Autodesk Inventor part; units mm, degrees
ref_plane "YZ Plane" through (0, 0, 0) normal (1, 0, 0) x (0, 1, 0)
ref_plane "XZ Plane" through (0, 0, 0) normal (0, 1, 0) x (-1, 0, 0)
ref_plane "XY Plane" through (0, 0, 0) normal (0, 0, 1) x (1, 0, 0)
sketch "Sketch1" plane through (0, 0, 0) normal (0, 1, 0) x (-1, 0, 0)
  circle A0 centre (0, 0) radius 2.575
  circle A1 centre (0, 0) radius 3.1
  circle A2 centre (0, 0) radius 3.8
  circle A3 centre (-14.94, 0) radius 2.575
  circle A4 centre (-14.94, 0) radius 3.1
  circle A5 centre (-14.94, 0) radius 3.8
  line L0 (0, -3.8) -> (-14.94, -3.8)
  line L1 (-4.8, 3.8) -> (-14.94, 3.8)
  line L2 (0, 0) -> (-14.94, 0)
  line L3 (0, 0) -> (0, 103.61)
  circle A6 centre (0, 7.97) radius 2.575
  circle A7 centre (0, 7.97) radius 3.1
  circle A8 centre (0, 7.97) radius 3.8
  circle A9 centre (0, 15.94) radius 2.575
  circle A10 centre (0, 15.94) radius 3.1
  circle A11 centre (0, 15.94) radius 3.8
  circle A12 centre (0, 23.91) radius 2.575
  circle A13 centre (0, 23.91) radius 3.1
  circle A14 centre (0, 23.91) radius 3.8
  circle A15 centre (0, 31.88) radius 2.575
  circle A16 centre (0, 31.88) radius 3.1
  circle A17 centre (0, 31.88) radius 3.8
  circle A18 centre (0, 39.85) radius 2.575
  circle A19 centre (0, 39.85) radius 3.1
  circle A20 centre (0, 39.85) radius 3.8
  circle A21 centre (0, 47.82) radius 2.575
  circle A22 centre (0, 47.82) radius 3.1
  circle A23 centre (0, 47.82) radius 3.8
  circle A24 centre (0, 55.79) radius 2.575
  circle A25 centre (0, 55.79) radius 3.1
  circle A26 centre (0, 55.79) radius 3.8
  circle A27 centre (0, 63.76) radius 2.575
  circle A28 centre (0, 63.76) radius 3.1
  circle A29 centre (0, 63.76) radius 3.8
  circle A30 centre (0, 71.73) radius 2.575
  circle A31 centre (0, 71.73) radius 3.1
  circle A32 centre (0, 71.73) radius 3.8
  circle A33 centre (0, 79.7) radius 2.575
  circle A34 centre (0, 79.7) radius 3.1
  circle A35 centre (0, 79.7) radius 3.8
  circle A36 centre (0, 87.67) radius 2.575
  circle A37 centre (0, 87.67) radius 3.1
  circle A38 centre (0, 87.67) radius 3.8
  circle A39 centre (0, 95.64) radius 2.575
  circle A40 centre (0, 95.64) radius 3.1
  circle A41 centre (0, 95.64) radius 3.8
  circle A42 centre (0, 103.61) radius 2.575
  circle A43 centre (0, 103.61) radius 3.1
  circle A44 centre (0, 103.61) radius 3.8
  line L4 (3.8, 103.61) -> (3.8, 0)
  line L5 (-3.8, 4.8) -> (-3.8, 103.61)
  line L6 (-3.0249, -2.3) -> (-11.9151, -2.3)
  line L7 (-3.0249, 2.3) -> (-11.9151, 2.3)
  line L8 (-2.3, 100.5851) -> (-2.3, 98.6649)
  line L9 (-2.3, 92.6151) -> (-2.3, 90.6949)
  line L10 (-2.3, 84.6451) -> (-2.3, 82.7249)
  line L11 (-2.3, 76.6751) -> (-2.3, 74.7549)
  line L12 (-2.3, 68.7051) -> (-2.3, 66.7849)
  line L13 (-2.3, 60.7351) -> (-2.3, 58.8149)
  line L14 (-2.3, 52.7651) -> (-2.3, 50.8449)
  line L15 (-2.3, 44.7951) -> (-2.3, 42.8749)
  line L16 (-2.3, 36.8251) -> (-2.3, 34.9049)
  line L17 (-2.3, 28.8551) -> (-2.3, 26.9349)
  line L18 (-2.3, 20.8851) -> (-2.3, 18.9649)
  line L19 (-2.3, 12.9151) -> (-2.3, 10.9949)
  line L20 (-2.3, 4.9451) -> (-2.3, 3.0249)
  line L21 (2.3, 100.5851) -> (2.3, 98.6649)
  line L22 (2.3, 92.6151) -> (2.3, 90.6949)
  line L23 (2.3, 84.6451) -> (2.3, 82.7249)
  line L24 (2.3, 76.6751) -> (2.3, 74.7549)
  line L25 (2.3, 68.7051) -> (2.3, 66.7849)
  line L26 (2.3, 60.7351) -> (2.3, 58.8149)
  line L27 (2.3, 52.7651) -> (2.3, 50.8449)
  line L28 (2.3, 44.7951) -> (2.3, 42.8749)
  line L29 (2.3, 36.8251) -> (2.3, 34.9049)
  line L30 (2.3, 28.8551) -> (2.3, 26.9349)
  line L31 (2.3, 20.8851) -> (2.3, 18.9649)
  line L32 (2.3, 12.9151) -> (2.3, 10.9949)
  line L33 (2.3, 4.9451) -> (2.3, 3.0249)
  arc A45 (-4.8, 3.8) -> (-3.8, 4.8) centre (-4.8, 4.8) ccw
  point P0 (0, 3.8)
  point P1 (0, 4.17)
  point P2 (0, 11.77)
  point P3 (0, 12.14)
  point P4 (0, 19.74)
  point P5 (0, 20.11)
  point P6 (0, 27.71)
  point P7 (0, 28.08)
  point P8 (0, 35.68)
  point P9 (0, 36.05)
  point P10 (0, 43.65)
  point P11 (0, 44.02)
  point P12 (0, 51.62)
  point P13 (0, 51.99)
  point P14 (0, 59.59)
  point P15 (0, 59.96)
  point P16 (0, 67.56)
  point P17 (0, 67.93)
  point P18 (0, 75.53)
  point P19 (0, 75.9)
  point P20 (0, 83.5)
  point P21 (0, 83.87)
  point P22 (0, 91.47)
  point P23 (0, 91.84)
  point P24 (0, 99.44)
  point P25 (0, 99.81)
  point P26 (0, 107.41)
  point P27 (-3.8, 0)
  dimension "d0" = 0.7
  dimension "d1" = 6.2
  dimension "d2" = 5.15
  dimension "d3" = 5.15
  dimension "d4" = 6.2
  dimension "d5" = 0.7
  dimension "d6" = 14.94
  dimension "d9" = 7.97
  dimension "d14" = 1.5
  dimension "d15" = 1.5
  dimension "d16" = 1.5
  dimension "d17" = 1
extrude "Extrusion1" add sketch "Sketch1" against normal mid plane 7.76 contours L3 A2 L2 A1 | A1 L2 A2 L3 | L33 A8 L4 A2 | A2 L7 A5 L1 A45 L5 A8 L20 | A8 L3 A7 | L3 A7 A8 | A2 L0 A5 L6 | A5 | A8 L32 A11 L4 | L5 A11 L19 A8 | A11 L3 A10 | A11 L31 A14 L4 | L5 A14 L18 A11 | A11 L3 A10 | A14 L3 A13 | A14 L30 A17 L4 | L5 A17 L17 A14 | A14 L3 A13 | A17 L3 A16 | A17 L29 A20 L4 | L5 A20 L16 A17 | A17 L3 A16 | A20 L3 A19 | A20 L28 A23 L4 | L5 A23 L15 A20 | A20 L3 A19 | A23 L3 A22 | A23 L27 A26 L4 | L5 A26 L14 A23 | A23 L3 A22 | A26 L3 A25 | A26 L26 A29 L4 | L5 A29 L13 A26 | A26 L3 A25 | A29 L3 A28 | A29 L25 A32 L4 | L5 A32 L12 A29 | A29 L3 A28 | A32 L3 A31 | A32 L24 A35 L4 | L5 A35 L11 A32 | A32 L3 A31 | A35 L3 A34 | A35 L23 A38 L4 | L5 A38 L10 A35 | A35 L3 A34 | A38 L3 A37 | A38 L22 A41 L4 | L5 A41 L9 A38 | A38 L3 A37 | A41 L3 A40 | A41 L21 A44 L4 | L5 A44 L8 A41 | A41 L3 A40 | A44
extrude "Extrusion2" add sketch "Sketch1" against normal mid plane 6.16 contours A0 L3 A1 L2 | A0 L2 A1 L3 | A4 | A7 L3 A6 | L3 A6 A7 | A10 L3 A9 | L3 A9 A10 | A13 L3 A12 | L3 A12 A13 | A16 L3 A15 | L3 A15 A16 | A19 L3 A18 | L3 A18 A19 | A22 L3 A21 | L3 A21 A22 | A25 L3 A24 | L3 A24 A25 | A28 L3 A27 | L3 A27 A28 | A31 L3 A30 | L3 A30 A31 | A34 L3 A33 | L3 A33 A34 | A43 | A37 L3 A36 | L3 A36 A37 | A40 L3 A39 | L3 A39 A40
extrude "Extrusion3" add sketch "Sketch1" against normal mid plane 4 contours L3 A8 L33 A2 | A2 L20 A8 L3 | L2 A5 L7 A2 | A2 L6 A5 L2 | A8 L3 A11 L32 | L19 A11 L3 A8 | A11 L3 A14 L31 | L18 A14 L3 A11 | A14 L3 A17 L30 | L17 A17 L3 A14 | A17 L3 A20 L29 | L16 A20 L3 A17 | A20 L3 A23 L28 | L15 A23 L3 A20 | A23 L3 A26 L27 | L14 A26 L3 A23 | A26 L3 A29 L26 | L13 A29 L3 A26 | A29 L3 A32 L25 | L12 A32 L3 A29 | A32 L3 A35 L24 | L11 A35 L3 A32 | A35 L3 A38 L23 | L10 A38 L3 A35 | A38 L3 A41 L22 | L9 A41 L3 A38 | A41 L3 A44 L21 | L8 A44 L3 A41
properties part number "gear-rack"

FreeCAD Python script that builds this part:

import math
import FreeCAD as App
import Part
import Sketcher
Q = App.Units.Quantity

doc = App.newDocument("Part")
body = doc.addObject("PartDesign::Body", "Body")

sketch1 = body.newObject("Sketcher::SketchObject", "Sketch")
sketch1.AttachmentSupport = (doc.getObject("XZ_Plane"), [""])
sketch1.MapMode = "FlatFace"
sketch1.addGeometry([
    Part.ArcOfCircle(Part.Circle(App.Vector(0, 0, 0), App.Vector(0, 0, 1), 3.8), math.radians(180), math.radians(270)),
    Part.LineSegment(App.Vector(-3.8, 0, 0), App.Vector(-3.8, 103.6, 0)),
    Part.ArcOfCircle(Part.Circle(App.Vector(0, 103.6, 0), App.Vector(0, 0, 1), 3.8), math.radians(0), math.radians(180)),
    Part.LineSegment(App.Vector(3.8, 103.6, 0), App.Vector(3.8, 4.8, 0)),
    Part.ArcOfCircle(Part.Circle(App.Vector(4.8, 4.8, 0), App.Vector(0, 0, 1), 1), math.radians(180), math.radians(270)),
    Part.LineSegment(App.Vector(4.8, 3.8, 0), App.Vector(14.9, 3.8, 0)),
    Part.ArcOfCircle(Part.Circle(App.Vector(14.9, 0, 0), App.Vector(0, 0, 1), 3.8), math.radians(-90), math.radians(90)),
    Part.LineSegment(App.Vector(14.9, -3.8, 0), App.Vector(0, -3.8, 0)),
    Part.ArcOfCircle(Part.Circle(App.Vector(0, 0, 0), App.Vector(0, 0, 1), 3.8), math.radians(53), math.radians(127)),
    Part.LineSegment(App.Vector(2.3, 3, 0), App.Vector(2.3, 4.9, 0)),
    Part.ArcOfCircle(Part.Circle(App.Vector(0, 8, 0), App.Vector(0, 0, 1), 3.8), math.radians(-127), math.radians(-53)),
    Part.LineSegment(App.Vector(-2.3, 4.9, 0), App.Vector(-2.3, 3, 0)),
    Part.LineSegment(App.Vector(3, -2.3, 0), App.Vector(11.9, -2.3, 0)),
    Part.ArcOfCircle(Part.Circle(App.Vector(14.9, 0, 0), App.Vector(0, 0, 1), 3.8), math.radians(180), math.radians(217)),
    Part.ArcOfCircle(Part.Circle(App.Vector(14.9, 0, 0), App.Vector(0, 0, 1), 3.8), math.radians(143), math.radians(180)),
    Part.LineSegment(App.Vector(11.9, 2.3, 0), App.Vector(3, 2.3, 0)),
    Part.ArcOfCircle(Part.Circle(App.Vector(0, 0, 0), App.Vector(0, 0, 1), 3.8), math.radians(-37), math.radians(37)),
    Part.Circle(App.Vector(0, 0, 0), App.Vector(0, 0, 1), 3.1),
    Part.Circle(App.Vector(0, 8, 0), App.Vector(0, 0, 1), 3.1),
    Part.ArcOfCircle(Part.Circle(App.Vector(0, 8, 0), App.Vector(0, 0, 1), 3.8), math.radians(53), math.radians(127)),
    Part.LineSegment(App.Vector(2.3, 11, 0), App.Vector(2.3, 12.9, 0)),
    Part.ArcOfCircle(Part.Circle(App.Vector(0, 15.9, 0), App.Vector(0, 0, 1), 3.8), math.radians(-127), math.radians(-53)),
    Part.LineSegment(App.Vector(-2.3, 12.9, 0), App.Vector(-2.3, 11, 0)),
    Part.Circle(App.Vector(14.9, 0, 0), App.Vector(0, 0, 1), 3.1),
    Part.Circle(App.Vector(0, 15.9, 0), App.Vector(0, 0, 1), 3.1),
    Part.ArcOfCircle(Part.Circle(App.Vector(0, 15.9, 0), App.Vector(0, 0, 1), 3.8), math.radians(53), math.radians(127)),
    Part.LineSegment(App.Vector(2.3, 19, 0), App.Vector(2.3, 20.9, 0)),
    Part.ArcOfCircle(Part.Circle(App.Vector(0, 23.9, 0), App.Vector(0, 0, 1), 3.8), math.radians(-127), math.radians(-53)),
    Part.LineSegment(App.Vector(-2.3, 20.9, 0), App.Vector(-2.3, 19, 0)),
    Part.Circle(App.Vector(0, 23.9, 0), App.Vector(0, 0, 1), 3.1),
    Part.ArcOfCircle(Part.Circle(App.Vector(0, 23.9, 0), App.Vector(0, 0, 1), 3.8), math.radians(53), math.radians(127)),
    Part.LineSegment(App.Vector(2.3, 26.9, 0), App.Vector(2.3, 28.9, 0)),
    Part.ArcOfCircle(Part.Circle(App.Vector(0, 31.9, 0), App.Vector(0, 0, 1), 3.8), math.radians(-127), math.radians(-53)),
    Part.LineSegment(App.Vector(-2.3, 28.9, 0), App.Vector(-2.3, 26.9, 0)),
    Part.Circle(App.Vector(0, 31.9, 0), App.Vector(0, 0, 1), 3.1),
    Part.ArcOfCircle(Part.Circle(App.Vector(0, 31.9, 0), App.Vector(0, 0, 1), 3.8), math.radians(53), math.radians(127)),
    Part.LineSegment(App.Vector(2.3, 34.9, 0), App.Vector(2.3, 36.8, 0)),
    Part.ArcOfCircle(Part.Circle(App.Vector(0, 39.9, 0), App.Vector(0, 0, 1), 3.8), math.radians(-127), math.radians(-53)),
    Part.LineSegment(App.Vector(-2.3, 36.8, 0), App.Vector(-2.3, 34.9, 0)),
    Part.Circle(App.Vector(0, 39.9, 0), App.Vector(0, 0, 1), 3.1),
    Part.ArcOfCircle(Part.Circle(App.Vector(0, 39.9, 0), App.Vector(0, 0, 1), 3.8), math.radians(53), math.radians(127)),
    Part.LineSegment(App.Vector(2.3, 42.9, 0), App.Vector(2.3, 44.8, 0)),
    Part.ArcOfCircle(Part.Circle(App.Vector(0, 47.8, 0), App.Vector(0, 0, 1), 3.8), math.radians(-127), math.radians(-53)),
    Part.LineSegment(App.Vector(-2.3, 44.8, 0), App.Vector(-2.3, 42.9, 0)),
    Part.Circle(App.Vector(0, 47.8, 0), App.Vector(0, 0, 1), 3.1),
    Part.ArcOfCircle(Part.Circle(App.Vector(0, 47.8, 0), App.Vector(0, 0, 1), 3.8), math.radians(53), math.radians(127)),
    Part.LineSegment(App.Vector(2.3, 50.8, 0), App.Vector(2.3, 52.8, 0)),
    Part.ArcOfCircle(Part.Circle(App.Vector(0, 55.8, 0), App.Vector(0, 0, 1), 3.8), math.radians(-127), math.radians(-53)),
    Part.LineSegment(App.Vector(-2.3, 52.8, 0), App.Vector(-2.3, 50.8, 0)),
    Part.Circle(App.Vector(0, 55.8, 0), App.Vector(0, 0, 1), 3.1),
    Part.ArcOfCircle(Part.Circle(App.Vector(0, 55.8, 0), App.Vector(0, 0, 1), 3.8), math.radians(53), math.radians(127)),
    Part.LineSegment(App.Vector(2.3, 58.8, 0), App.Vector(2.3, 60.7, 0)),
    Part.ArcOfCircle(Part.Circle(App.Vector(0, 63.8, 0), App.Vector(0, 0, 1), 3.8), math.radians(-127), math.radians(-53)),
    Part.LineSegment(App.Vector(-2.3, 60.7, 0), App.Vector(-2.3, 58.8, 0)),
    Part.Circle(App.Vector(0, 63.8, 0), App.Vector(0, 0, 1), 3.1),
    Part.ArcOfCircle(Part.Circle(App.Vector(0, 63.8, 0), App.Vector(0, 0, 1), 3.8), math.radians(53), math.radians(127)),
    Part.LineSegment(App.Vector(2.3, 66.8, 0), App.Vector(2.3, 68.7, 0)),
    Part.ArcOfCircle(Part.Circle(App.Vector(0, 71.7, 0), App.Vector(0, 0, 1), 3.8), math.radians(-127), math.radians(-53)),
    Part.LineSegment(App.Vector(-2.3, 68.7, 0), App.Vector(-2.3, 66.8, 0)),
    Part.Circle(App.Vector(0, 71.7, 0), App.Vector(0, 0, 1), 3.1),
    Part.ArcOfCircle(Part.Circle(App.Vector(0, 71.7, 0), App.Vector(0, 0, 1), 3.8), math.radians(53), math.radians(127)),
    Part.LineSegment(App.Vector(2.3, 74.8, 0), App.Vector(2.3, 76.7, 0)),
    Part.ArcOfCircle(Part.Circle(App.Vector(0, 79.7, 0), App.Vector(0, 0, 1), 3.8), math.radians(-127), math.radians(-53)),
    Part.LineSegment(App.Vector(-2.3, 76.7, 0), App.Vector(-2.3, 74.8, 0)),
    Part.Circle(App.Vector(0, 79.7, 0), App.Vector(0, 0, 1), 3.1),
    Part.ArcOfCircle(Part.Circle(App.Vector(0, 79.7, 0), App.Vector(0, 0, 1), 3.8), math.radians(53), math.radians(127)),
    Part.LineSegment(App.Vector(2.3, 82.7, 0), App.Vector(2.3, 84.6, 0)),
    Part.ArcOfCircle(Part.Circle(App.Vector(0, 87.7, 0), App.Vector(0, 0, 1), 3.8), math.radians(-127), math.radians(-53)),
    Part.LineSegment(App.Vector(-2.3, 84.6, 0), App.Vector(-2.3, 82.7, 0)),
    Part.Circle(App.Vector(0, 87.7, 0), App.Vector(0, 0, 1), 3.1),
    Part.ArcOfCircle(Part.Circle(App.Vector(0, 87.7, 0), App.Vector(0, 0, 1), 3.8), math.radians(53), math.radians(127)),
    Part.LineSegment(App.Vector(2.3, 90.7, 0), App.Vector(2.3, 92.6, 0)),
    Part.ArcOfCircle(Part.Circle(App.Vector(0, 95.6, 0), App.Vector(0, 0, 1), 3.8), math.radians(-127), math.radians(-53)),
    Part.LineSegment(App.Vector(-2.3, 92.6, 0), App.Vector(-2.3, 90.7, 0)),
    Part.Circle(App.Vector(0, 95.6, 0), App.Vector(0, 0, 1), 3.1),
    Part.ArcOfCircle(Part.Circle(App.Vector(0, 95.6, 0), App.Vector(0, 0, 1), 3.8), math.radians(53), math.radians(127)),
    Part.LineSegment(App.Vector(2.3, 98.7, 0), App.Vector(2.3, 100.6, 0)),
    Part.ArcOfCircle(Part.Circle(App.Vector(0, 103.6, 0), App.Vector(0, 0, 1), 3.8), math.radians(-90), math.radians(-53)),
    Part.ArcOfCircle(Part.Circle(App.Vector(0, 103.6, 0), App.Vector(0, 0, 1), 3.8), math.radians(-127), math.radians(-90)),
    Part.LineSegment(App.Vector(-2.3, 100.6, 0), App.Vector(-2.3, 98.7, 0)),
    Part.Circle(App.Vector(0, 103.6, 0), App.Vector(0, 0, 1), 3.1),
], False)
sketch1.addConstraint([
    Sketcher.Constraint("Tangent", 0, 1, 1, 1),
    Sketcher.Constraint("Tangent", 1, 2, 2, 2),
    Sketcher.Constraint("Tangent", 2, 1, 3, 1),
    Sketcher.Constraint("Tangent", 3, 2, 4, 1),
    Sketcher.Constraint("Tangent", 4, 2, 5, 1),
    Sketcher.Constraint("Tangent", 5, 2, 6, 2),
    Sketcher.Constraint("Tangent", 6, 1, 7, 1),
    Sketcher.Constraint("Tangent", 7, 2, 0, 2),
    Sketcher.Constraint("Coincident", 8, 1, 9, 1),
    Sketcher.Constraint("Coincident", 9, 2, 10, 2),
    Sketcher.Constraint("Coincident", 10, 1, 11, 1),
    Sketcher.Constraint("Coincident", 11, 2, 8, 2),
    Sketcher.Constraint("Coincident", 12, 2, 13, 2),
    Sketcher.Constraint("Tangent", 13, 1, 14, 2),
    Sketcher.Constraint("Coincident", 14, 1, 15, 1),
    Sketcher.Constraint("Coincident", 15, 2, 16, 2),
    Sketcher.Constraint("Coincident", 16, 1, 12, 1),
    Sketcher.Constraint("Coincident", 19, 1, 20, 1),
    Sketcher.Constraint("Coincident", 20, 2, 21, 2),
    Sketcher.Constraint("Coincident", 21, 1, 22, 1),
    Sketcher.Constraint("Coincident", 22, 2, 19, 2),
    Sketcher.Constraint("Coincident", 25, 1, 26, 1),
    Sketcher.Constraint("Coincident", 26, 2, 27, 2),
    Sketcher.Constraint("Coincident", 27, 1, 28, 1),
    Sketcher.Constraint("Coincident", 28, 2, 25, 2),
    Sketcher.Constraint("Coincident", 30, 1, 31, 1),
    Sketcher.Constraint("Coincident", 31, 2, 32, 2),
    Sketcher.Constraint("Coincident", 32, 1, 33, 1),
    Sketcher.Constraint("Coincident", 33, 2, 30, 2),
    Sketcher.Constraint("Coincident", 35, 1, 36, 1),
    Sketcher.Constraint("Coincident", 36, 2, 37, 2),
    Sketcher.Constraint("Coincident", 37, 1, 38, 1),
    Sketcher.Constraint("Coincident", 38, 2, 35, 2),
    Sketcher.Constraint("Coincident", 40, 1, 41, 1),
    Sketcher.Constraint("Coincident", 41, 2, 42, 2),
    Sketcher.Constraint("Coincident", 42, 1, 43, 1),
    Sketcher.Constraint("Coincident", 43, 2, 40, 2),
    Sketcher.Constraint("Coincident", 45, 1, 46, 1),
    Sketcher.Constraint("Coincident", 46, 2, 47, 2),
    Sketcher.Constraint("Coincident", 47, 1, 48, 1),
    Sketcher.Constraint("Coincident", 48, 2, 45, 2),
    Sketcher.Constraint("Coincident", 50, 1, 51, 1),
    Sketcher.Constraint("Coincident", 51, 2, 52, 2),
    Sketcher.Constraint("Coincident", 52, 1, 53, 1),
    Sketcher.Constraint("Coincident", 53, 2, 50, 2),
    Sketcher.Constraint("Coincident", 55, 1, 56, 1),
    Sketcher.Constraint("Coincident", 56, 2, 57, 2),
    Sketcher.Constraint("Coincident", 57, 1, 58, 1),
    Sketcher.Constraint("Coincident", 58, 2, 55, 2),
    Sketcher.Constraint("Coincident", 60, 1, 61, 1),
    Sketcher.Constraint("Coincident", 61, 2, 62, 2),
    Sketcher.Constraint("Coincident", 62, 1, 63, 1),
    Sketcher.Constraint("Coincident", 63, 2, 60, 2),
    Sketcher.Constraint("Coincident", 65, 1, 66, 1),
    Sketcher.Constraint("Coincident", 66, 2, 67, 2),
    Sketcher.Constraint("Coincident", 67, 1, 68, 1),
    Sketcher.Constraint("Coincident", 68, 2, 65, 2),
    Sketcher.Constraint("Coincident", 70, 1, 71, 1),
    Sketcher.Constraint("Coincident", 71, 2, 72, 2),
    Sketcher.Constraint("Coincident", 72, 1, 73, 1),
    Sketcher.Constraint("Coincident", 73, 2, 70, 2),
    Sketcher.Constraint("Coincident", 75, 1, 76, 1),
    Sketcher.Constraint("Coincident", 76, 2, 77, 2),
    Sketcher.Constraint("Tangent", 77, 1, 78, 2),
    Sketcher.Constraint("Coincident", 78, 1, 79, 1),
    Sketcher.Constraint("Coincident", 79, 2, 75, 2),
    Sketcher.Constraint("Vertical", 1),
    Sketcher.Constraint("Vertical", 3),
    Sketcher.Constraint("Horizontal", 5),
    Sketcher.Constraint("Horizontal", 7),
    Sketcher.Constraint("Vertical", 9),
    Sketcher.Constraint("Vertical", 11),
    Sketcher.Constraint("Horizontal", 12),
    Sketcher.Constraint("Horizontal", 15),
    Sketcher.Constraint("Vertical", 20),
    Sketcher.Constraint("Vertical", 22),
    Sketcher.Constraint("Vertical", 26),
    Sketcher.Constraint("Vertical", 28),
    Sketcher.Constraint("Vertical", 31),
    Sketcher.Constraint("Vertical", 33),
    Sketcher.Constraint("Vertical", 36),
    Sketcher.Constraint("Vertical", 38),
    Sketcher.Constraint("Vertical", 41),
    Sketcher.Constraint("Vertical", 43),
    Sketcher.Constraint("Vertical", 46),
    Sketcher.Constraint("Vertical", 48),
    Sketcher.Constraint("Vertical", 51),
    Sketcher.Constraint("Vertical", 53),
    Sketcher.Constraint("Vertical", 56),
    Sketcher.Constraint("Vertical", 58),
    Sketcher.Constraint("Vertical", 61),
    Sketcher.Constraint("Vertical", 63),
    Sketcher.Constraint("Vertical", 66),
    Sketcher.Constraint("Vertical", 68),
    Sketcher.Constraint("Vertical", 71),
    Sketcher.Constraint("Vertical", 73),
    Sketcher.Constraint("Vertical", 76),
    Sketcher.Constraint("Vertical", 79),
    Sketcher.Constraint("Coincident", 0, 3, -1, 1),
    Sketcher.Constraint("Coincident", 8, 3, -1, 1),
    Sketcher.Constraint("Coincident", 16, 3, -1, 1),
    Sketcher.Constraint("Coincident", 17, 3, -1, 1),
    Sketcher.Constraint("Coincident", 13, 3, 6, 3),
    Sketcher.Constraint("Coincident", 18, 3, 10, 3),
    Sketcher.Constraint("Coincident", 19, 3, 10, 3),
    Sketcher.Constraint("Coincident", 23, 3, 6, 3),
    Sketcher.Constraint("Coincident", 24, 3, 21, 3),
    Sketcher.Constraint("Coincident", 25, 3, 21, 3),
    Sketcher.Constraint("Coincident", 29, 3, 27, 3),
    Sketcher.Constraint("Coincident", 30, 3, 27, 3),
    Sketcher.Constraint("Coincident", 34, 3, 32, 3),
    Sketcher.Constraint("Coincident", 35, 3, 32, 3),
    Sketcher.Constraint("Coincident", 39, 3, 37, 3),
    Sketcher.Constraint("Coincident", 40, 3, 37, 3),
    Sketcher.Constraint("Coincident", 44, 3, 42, 3),
    Sketcher.Constraint("Coincident", 45, 3, 42, 3),
    Sketcher.Constraint("Coincident", 49, 3, 47, 3),
    Sketcher.Constraint("Coincident", 50, 3, 47, 3),
    Sketcher.Constraint("Coincident", 54, 3, 52, 3),
    Sketcher.Constraint("Coincident", 55, 3, 52, 3),
    Sketcher.Constraint("Coincident", 59, 3, 57, 3),
    Sketcher.Constraint("Coincident", 60, 3, 57, 3),
    Sketcher.Constraint("Coincident", 64, 3, 62, 3),
    Sketcher.Constraint("Coincident", 65, 3, 62, 3),
    Sketcher.Constraint("Coincident", 69, 3, 67, 3),
    Sketcher.Constraint("Coincident", 70, 3, 67, 3),
    Sketcher.Constraint("Coincident", 74, 3, 72, 3),
    Sketcher.Constraint("Coincident", 75, 3, 72, 3),
    Sketcher.Constraint("Coincident", 77, 3, 2, 3),
    Sketcher.Constraint("Coincident", 80, 3, 2, 3),
    Sketcher.Constraint("Equal", 0, 2),
    Sketcher.Constraint("Equal", 2, 6),
    Sketcher.Constraint("Equal", 6, 8),
    Sketcher.Constraint("Equal", 8, 10),
    Sketcher.Constraint("Equal", 10, 13),
    Sketcher.Constraint("Equal", 13, 14),
    Sketcher.Constraint("Equal", 14, 16),
    Sketcher.Constraint("Equal", 17, 18),
    Sketcher.Constraint("Equal", 16, 19),
    Sketcher.Constraint("Equal", 19, 21),
    Sketcher.Constraint("Equal", 18, 23),
    Sketcher.Constraint("Equal", 23, 24),
    Sketcher.Constraint("Equal", 21, 25),
    Sketcher.Constraint("Equal", 25, 27),
    Sketcher.Constraint("Equal", 24, 29),
    Sketcher.Constraint("Equal", 27, 30),
    Sketcher.Constraint("Equal", 30, 32),
    Sketcher.Constraint("Equal", 29, 34),
    Sketcher.Constraint("Equal", 32, 35),
    Sketcher.Constraint("Equal", 35, 37),
    Sketcher.Constraint("Equal", 34, 39),
    Sketcher.Constraint("Equal", 37, 40),
    Sketcher.Constraint("Equal", 40, 42),
    Sketcher.Constraint("Equal", 39, 44),
    Sketcher.Constraint("Equal", 42, 45),
    Sketcher.Constraint("Equal", 45, 47),
    Sketcher.Constraint("Equal", 44, 49),
    Sketcher.Constraint("Equal", 47, 50),
    Sketcher.Constraint("Equal", 50, 52),
    Sketcher.Constraint("Equal", 49, 54),
    Sketcher.Constraint("Equal", 52, 55),
    Sketcher.Constraint("Equal", 55, 57),
    Sketcher.Constraint("Equal", 54, 59),
    Sketcher.Constraint("Equal", 57, 60),
    Sketcher.Constraint("Equal", 60, 62),
    Sketcher.Constraint("Equal", 59, 64),
    Sketcher.Constraint("Equal", 62, 65),
    Sketcher.Constraint("Equal", 65, 67),
    Sketcher.Constraint("Equal", 64, 69),
    Sketcher.Constraint("Equal", 67, 70),
    Sketcher.Constraint("Equal", 70, 72),
    Sketcher.Constraint("Equal", 69, 74),
    Sketcher.Constraint("Equal", 72, 75),
    Sketcher.Constraint("Equal", 75, 77),
    Sketcher.Constraint("Equal", 77, 78),
    Sketcher.Constraint("Equal", 74, 80),
    Sketcher.Constraint("Symmetric", 9, 2, 10, 1, -2),
    Sketcher.Constraint("Symmetric", 20, 2, 21, 1, -2),
    Sketcher.Constraint("Symmetric", 26, 2, 27, 1, -2),
    Sketcher.Constraint("Symmetric", 31, 2, 32, 1, -2),
    Sketcher.Constraint("Symmetric", 36, 2, 37, 1, -2),
    Sketcher.Constraint("Symmetric", 41, 2, 42, 1, -2),
    Sketcher.Constraint("Symmetric", 46, 2, 47, 1, -2),
    Sketcher.Constraint("Symmetric", 51, 2, 52, 1, -2),
    Sketcher.Constraint("Symmetric", 56, 2, 57, 1, -2),
    Sketcher.Constraint("Symmetric", 61, 2, 62, 1, -2),
    Sketcher.Constraint("Symmetric", 66, 2, 67, 1, -2),
    Sketcher.Constraint("Symmetric", 71, 2, 72, 1, -2),
    Sketcher.Constraint("PointOnObject", 13, 1, -1),
    Sketcher.Constraint("PointOnObject", 77, 1, -2),
    Sketcher.Constraint("Horizontal", 76, 2, 78, 1),
    Sketcher.Constraint("Vertical", 12, 2, 14, 1),
    Sketcher.Constraint("Vertical", 9, 2, 19, 1),
    Sketcher.Constraint("Vertical", 20, 2, 25, 1),
    Sketcher.Constraint("Vertical", 26, 2, 30, 1),
    Sketcher.Constraint("Vertical", 31, 2, 35, 1),
    Sketcher.Constraint("Vertical", 36, 2, 40, 1),
    Sketcher.Constraint("Vertical", 41, 2, 45, 1),
    Sketcher.Constraint("Vertical", 46, 2, 50, 1),
    Sketcher.Constraint("Vertical", 51, 2, 55, 1),
    Sketcher.Constraint("Vertical", 56, 2, 60, 1),
    Sketcher.Constraint("Vertical", 61, 2, 65, 1),
    Sketcher.Constraint("Vertical", 66, 2, 70, 1),
    Sketcher.Constraint("Vertical", 71, 2, 75, 1),
    Sketcher.Constraint("Equal", 11, 20),
    Sketcher.Constraint("Equal", 22, 26),
    Sketcher.Constraint("Equal", 28, 31),
    Sketcher.Constraint("Equal", 33, 36),
    Sketcher.Constraint("Equal", 38, 41),
    Sketcher.Constraint("Equal", 43, 46),
    Sketcher.Constraint("Equal", 48, 51),
    Sketcher.Constraint("Equal", 53, 56),
    Sketcher.Constraint("Equal", 58, 61),
    Sketcher.Constraint("Equal", 63, 66),
    Sketcher.Constraint("Equal", 68, 71),
    Sketcher.Constraint("Equal", 73, 76),
    Sketcher.Constraint("Radius", 4, Q("1 mm")),
    Sketcher.Constraint("Diameter", 17, Q("6.2 mm")),
    Sketcher.Constraint("DistanceX", 7, 2, 7, 1, Q("14.94 mm")),
    Sketcher.Constraint("Radius", 0, Q("3.8 mm")),
    Sketcher.Constraint("DistanceY", -1, 1, 10, 3, Q("7.97 mm")),
    Sketcher.Constraint("DistanceX", -1, 1, 8, 1, Q("2.3 mm")),
    Sketcher.Constraint("DistanceY", 12, 2, -1, 1, Q("2.3 mm")),
])
pad1 = body.newObject("PartDesign::Pad", "Pad")
pad1.Profile = sketch1
pad1.Length = 7.76
pad1.Midplane = True

sketch2 = body.newObject("Sketcher::SketchObject", "Sketch001")
sketch2.AttachmentSupport = (doc.getObject("XZ_Plane"), [""])
sketch2.MapMode = "FlatFace"
sketch2.addGeometry([
    Part.Circle(App.Vector(0, 0, 0), App.Vector(0, 0, 1), 3.1),
    Part.Circle(App.Vector(0, 0, 0), App.Vector(0, 0, 1), 2.6),
    Part.Circle(App.Vector(14.9, 0, 0), App.Vector(0, 0, 1), 3.1),
    Part.Circle(App.Vector(14.9, 0, 0), App.Vector(0, 0, 1), 2.6),
    Part.Circle(App.Vector(0, 8, 0), App.Vector(0, 0, 1), 3.1),
    Part.Circle(App.Vector(0, 8, 0), App.Vector(0, 0, 1), 2.6),
    Part.Circle(App.Vector(0, 15.9, 0), App.Vector(0, 0, 1), 3.1),
    Part.Circle(App.Vector(0, 15.9, 0), App.Vector(0, 0, 1), 2.6),
    Part.Circle(App.Vector(0, 23.9, 0), App.Vector(0, 0, 1), 3.1),
    Part.Circle(App.Vector(0, 23.9, 0), App.Vector(0, 0, 1), 2.6),
    Part.Circle(App.Vector(0, 31.9, 0), App.Vector(0, 0, 1), 3.1),
    Part.Circle(App.Vector(0, 31.9, 0), App.Vector(0, 0, 1), 2.6),
    Part.Circle(App.Vector(0, 39.9, 0), App.Vector(0, 0, 1), 3.1),
    Part.Circle(App.Vector(0, 39.9, 0), App.Vector(0, 0, 1), 2.6),
    Part.Circle(App.Vector(0, 47.8, 0), App.Vector(0, 0, 1), 3.1),
    Part.Circle(App.Vector(0, 47.8, 0), App.Vector(0, 0, 1), 2.6),
    Part.Circle(App.Vector(0, 55.8, 0), App.Vector(0, 0, 1), 3.1),
    Part.Circle(App.Vector(0, 55.8, 0), App.Vector(0, 0, 1), 2.6),
    Part.Circle(App.Vector(0, 63.8, 0), App.Vector(0, 0, 1), 3.1),
    Part.Circle(App.Vector(0, 63.8, 0), App.Vector(0, 0, 1), 2.6),
    Part.Circle(App.Vector(0, 71.7, 0), App.Vector(0, 0, 1), 3.1),
    Part.Circle(App.Vector(0, 71.7, 0), App.Vector(0, 0, 1), 2.6),
    Part.Circle(App.Vector(0, 79.7, 0), App.Vector(0, 0, 1), 3.1),
    Part.Circle(App.Vector(0, 79.7, 0), App.Vector(0, 0, 1), 2.6),
    Part.Circle(App.Vector(0, 103.6, 0), App.Vector(0, 0, 1), 3.1),
    Part.Circle(App.Vector(0, 103.6, 0), App.Vector(0, 0, 1), 2.6),
    Part.Circle(App.Vector(0, 87.7, 0), App.Vector(0, 0, 1), 3.1),
    Part.Circle(App.Vector(0, 87.7, 0), App.Vector(0, 0, 1), 2.6),
    Part.Circle(App.Vector(0, 95.6, 0), App.Vector(0, 0, 1), 3.1),
    Part.Circle(App.Vector(0, 95.6, 0), App.Vector(0, 0, 1), 2.6),
], False)
sketch2.addConstraint([
    Sketcher.Constraint("Coincident", 0, 3, -1, 1),
    Sketcher.Constraint("Coincident", 1, 3, -1, 1),
    Sketcher.Constraint("Coincident", 3, 3, 2, 3),
    Sketcher.Constraint("Coincident", 5, 3, 4, 3),
    Sketcher.Constraint("Coincident", 7, 3, 6, 3),
    Sketcher.Constraint("Coincident", 9, 3, 8, 3),
    Sketcher.Constraint("Coincident", 11, 3, 10, 3),
    Sketcher.Constraint("Coincident", 13, 3, 12, 3),
    Sketcher.Constraint("Coincident", 15, 3, 14, 3),
    Sketcher.Constraint("Coincident", 17, 3, 16, 3),
    Sketcher.Constraint("Coincident", 19, 3, 18, 3),
    Sketcher.Constraint("Coincident", 21, 3, 20, 3),
    Sketcher.Constraint("Coincident", 23, 3, 22, 3),
    Sketcher.Constraint("Coincident", 25, 3, 24, 3),
    Sketcher.Constraint("Coincident", 27, 3, 26, 3),
    Sketcher.Constraint("Coincident", 29, 3, 28, 3),
    Sketcher.Constraint("Equal", 0, 2),
    Sketcher.Constraint("Equal", 1, 3),
    Sketcher.Constraint("Equal", 2, 4),
    Sketcher.Constraint("Equal", 3, 5),
    Sketcher.Constraint("Equal", 4, 6),
    Sketcher.Constraint("Equal", 5, 7),
    Sketcher.Constraint("Equal", 6, 8),
    Sketcher.Constraint("Equal", 7, 9),
    Sketcher.Constraint("Equal", 8, 10),
    Sketcher.Constraint("Equal", 9, 11),
    Sketcher.Constraint("Equal", 10, 12),
    Sketcher.Constraint("Equal", 11, 13),
    Sketcher.Constraint("Equal", 12, 14),
    Sketcher.Constraint("Equal", 13, 15),
    Sketcher.Constraint("Equal", 14, 16),
    Sketcher.Constraint("Equal", 15, 17),
    Sketcher.Constraint("Equal", 16, 18),
    Sketcher.Constraint("Equal", 17, 19),
    Sketcher.Constraint("Equal", 18, 20),
    Sketcher.Constraint("Equal", 19, 21),
    Sketcher.Constraint("Equal", 20, 22),
    Sketcher.Constraint("Equal", 21, 23),
    Sketcher.Constraint("Equal", 22, 24),
    Sketcher.Constraint("Equal", 23, 25),
    Sketcher.Constraint("Equal", 24, 26),
    Sketcher.Constraint("Equal", 25, 27),
    Sketcher.Constraint("Equal", 26, 28),
    Sketcher.Constraint("Equal", 27, 29),
    Sketcher.Constraint("PointOnObject", 2, 3, -1),
    Sketcher.Constraint("PointOnObject", 4, 3, -2),
    Sketcher.Constraint("PointOnObject", 6, 3, -2),
    Sketcher.Constraint("PointOnObject", 8, 3, -2),
    Sketcher.Constraint("PointOnObject", 10, 3, -2),
    Sketcher.Constraint("PointOnObject", 12, 3, -2),
    Sketcher.Constraint("PointOnObject", 14, 3, -2),
    Sketcher.Constraint("PointOnObject", 16, 3, -2),
    Sketcher.Constraint("PointOnObject", 18, 3, -2),
    Sketcher.Constraint("PointOnObject", 20, 3, -2),
    Sketcher.Constraint("PointOnObject", 22, 3, -2),
    Sketcher.Constraint("PointOnObject", 24, 3, -2),
    Sketcher.Constraint("PointOnObject", 26, 3, -2),
    Sketcher.Constraint("PointOnObject", 28, 3, -2),
    Sketcher.Constraint("Diameter", 0, Q("6.2 mm")),
    Sketcher.Constraint("Diameter", 1, Q("5.15 mm")),
    Sketcher.Constraint("DistanceX", -1, 1, 2, 3, Q("14.94 mm")),
    Sketcher.Constraint("DistanceY", -1, 1, 4, 3, Q("7.97 mm")),
    Sketcher.Constraint("DistanceY", 4, 3, 6, 3, Q("7.97 mm")),
    Sketcher.Constraint("DistanceY", 6, 3, 8, 3, Q("7.97 mm")),
    Sketcher.Constraint("DistanceY", 8, 3, 10, 3, Q("7.97 mm")),
    Sketcher.Constraint("DistanceY", 10, 3, 12, 3, Q("7.97 mm")),
    Sketcher.Constraint("DistanceY", 12, 3, 14, 3, Q("7.97 mm")),
    Sketcher.Constraint("DistanceY", 14, 3, 16, 3, Q("7.97 mm")),
    Sketcher.Constraint("DistanceY", 16, 3, 18, 3, Q("7.97 mm")),
    Sketcher.Constraint("DistanceY", 18, 3, 20, 3, Q("7.97 mm")),
    Sketcher.Constraint("DistanceY", 20, 3, 22, 3, Q("7.97 mm")),
    Sketcher.Constraint("DistanceY", 22, 3, 26, 3, Q("7.97 mm")),
    Sketcher.Constraint("DistanceY", 28, 3, 24, 3, Q("7.97 mm")),
    Sketcher.Constraint("DistanceY", 26, 3, 28, 3, Q("7.97 mm")),
])
pad2 = body.newObject("PartDesign::Pad", "Pad001")
pad2.Profile = sketch2
pad2.Length = 6.16
pad2.Midplane = True

sketch3 = body.newObject("Sketcher::SketchObject", "Sketch002")
sketch3.AttachmentSupport = (doc.getObject("XZ_Plane"), [""])
sketch3.MapMode = "FlatFace"
sketch3.addGeometry([
    Part.ArcOfCircle(Part.Circle(App.Vector(0, 8, 0), App.Vector(0, 0, 1), 3.8), math.radians(-127), math.radians(-53)),
    Part.LineSegment(App.Vector(2.3, 4.9, 0), App.Vector(2.3, 3, 0)),
    Part.ArcOfCircle(Part.Circle(App.Vector(0, 0, 0), App.Vector(0, 0, 1), 3.8), math.radians(53), math.radians(127)),
    Part.LineSegment(App.Vector(-2.3, 3, 0), App.Vector(-2.3, 4.9, 0)),
    Part.ArcOfCircle(Part.Circle(App.Vector(14.9, 0, 0), App.Vector(0, 0, 1), 3.8), math.radians(143), math.radians(217)),
    Part.LineSegment(App.Vector(11.9, -2.3, 0), App.Vector(3, -2.3, 0)),
    Part.ArcOfCircle(Part.Circle(App.Vector(0, 0, 0), App.Vector(0, 0, 1), 3.8), math.radians(-37), math.radians(37)),
    Part.LineSegment(App.Vector(3, 2.3, 0), App.Vector(11.9, 2.3, 0)),
    Part.LineSegment(App.Vector(-2.3, 11, 0), App.Vector(-2.3, 12.9, 0)),
    Part.ArcOfCircle(Part.Circle(App.Vector(0, 15.9, 0), App.Vector(0, 0, 1), 3.8), math.radians(-127), math.radians(-53)),
    Part.LineSegment(App.Vector(2.3, 12.9, 0), App.Vector(2.3, 11, 0)),
    Part.ArcOfCircle(Part.Circle(App.Vector(0, 8, 0), App.Vector(0, 0, 1), 3.8), math.radians(53), math.radians(127)),
    Part.LineSegment(App.Vector(-2.3, 19, 0), App.Vector(-2.3, 20.9, 0)),
    Part.ArcOfCircle(Part.Circle(App.Vector(0, 23.9, 0), App.Vector(0, 0, 1), 3.8), math.radians(-127), math.radians(-53)),
    Part.LineSegment(App.Vector(2.3, 20.9, 0), App.Vector(2.3, 19, 0)),
    Part.ArcOfCircle(Part.Circle(App.Vector(0, 15.9, 0), App.Vector(0, 0, 1), 3.8), math.radians(53), math.radians(127)),
    Part.LineSegment(App.Vector(-2.3, 26.9, 0), App.Vector(-2.3, 28.9, 0)),
    Part.ArcOfCircle(Part.Circle(App.Vector(0, 31.9, 0), App.Vector(0, 0, 1), 3.8), math.radians(-127), math.radians(-53)),
    Part.LineSegment(App.Vector(2.3, 28.9, 0), App.Vector(2.3, 26.9, 0)),
    Part.ArcOfCircle(Part.Circle(App.Vector(0, 23.9, 0), App.Vector(0, 0, 1), 3.8), math.radians(53), math.radians(127)),
    Part.LineSegment(App.Vector(-2.3, 34.9, 0), App.Vector(-2.3, 36.8, 0)),
    Part.ArcOfCircle(Part.Circle(App.Vector(0, 39.9, 0), App.Vector(0, 0, 1), 3.8), math.radians(-127), math.radians(-53)),
    Part.LineSegment(App.Vector(2.3, 36.8, 0), App.Vector(2.3, 34.9, 0)),
    Part.ArcOfCircle(Part.Circle(App.Vector(0, 31.9, 0), App.Vector(0, 0, 1), 3.8), math.radians(53), math.radians(127)),
    Part.LineSegment(App.Vector(-2.3, 42.9, 0), App.Vector(-2.3, 44.8, 0)),
    Part.ArcOfCircle(Part.Circle(App.Vector(0, 47.8, 0), App.Vector(0, 0, 1), 3.8), math.radians(-127), math.radians(-53)),
    Part.LineSegment(App.Vector(2.3, 44.8, 0), App.Vector(2.3, 42.9, 0)),
    Part.ArcOfCircle(Part.Circle(App.Vector(0, 39.9, 0), App.Vector(0, 0, 1), 3.8), math.radians(53), math.radians(127)),
    Part.LineSegment(App.Vector(-2.3, 50.8, 0), App.Vector(-2.3, 52.8, 0)),
    Part.ArcOfCircle(Part.Circle(App.Vector(0, 55.8, 0), App.Vector(0, 0, 1), 3.8), math.radians(-127), math.radians(-53)),
    Part.LineSegment(App.Vector(2.3, 52.8, 0), App.Vector(2.3, 50.8, 0)),
    Part.ArcOfCircle(Part.Circle(App.Vector(0, 47.8, 0), App.Vector(0, 0, 1), 3.8), math.radians(53), math.radians(127)),
    Part.LineSegment(App.Vector(-2.3, 58.8, 0), App.Vector(-2.3, 60.7, 0)),
    Part.ArcOfCircle(Part.Circle(App.Vector(0, 63.8, 0), App.Vector(0, 0, 1), 3.8), math.radians(-127), math.radians(-53)),
    Part.LineSegment(App.Vector(2.3, 60.7, 0), App.Vector(2.3, 58.8, 0)),
    Part.ArcOfCircle(Part.Circle(App.Vector(0, 55.8, 0), App.Vector(0, 0, 1), 3.8), math.radians(53), math.radians(127)),
    Part.LineSegment(App.Vector(-2.3, 66.8, 0), App.Vector(-2.3, 68.7, 0)),
    Part.ArcOfCircle(Part.Circle(App.Vector(0, 71.7, 0), App.Vector(0, 0, 1), 3.8), math.radians(-127), math.radians(-53)),
    Part.LineSegment(App.Vector(2.3, 68.7, 0), App.Vector(2.3, 66.8, 0)),
    Part.ArcOfCircle(Part.Circle(App.Vector(0, 63.8, 0), App.Vector(0, 0, 1), 3.8), math.radians(53), math.radians(127)),
    Part.LineSegment(App.Vector(-2.3, 74.8, 0), App.Vector(-2.3, 76.7, 0)),
    Part.ArcOfCircle(Part.Circle(App.Vector(0, 79.7, 0), App.Vector(0, 0, 1), 3.8), math.radians(-127), math.radians(-53)),
    Part.LineSegment(App.Vector(2.3, 76.7, 0), App.Vector(2.3, 74.8, 0)),
    Part.ArcOfCircle(Part.Circle(App.Vector(0, 71.7, 0), App.Vector(0, 0, 1), 3.8), math.radians(53), math.radians(127)),
    Part.LineSegment(App.Vector(-2.3, 82.7, 0), App.Vector(-2.3, 84.6, 0)),
    Part.ArcOfCircle(Part.Circle(App.Vector(0, 87.7, 0), App.Vector(0, 0, 1), 3.8), math.radians(-127), math.radians(-53)),
    Part.LineSegment(App.Vector(2.3, 84.6, 0), App.Vector(2.3, 82.7, 0)),
    Part.ArcOfCircle(Part.Circle(App.Vector(0, 79.7, 0), App.Vector(0, 0, 1), 3.8), math.radians(53), math.radians(127)),
    Part.LineSegment(App.Vector(-2.3, 90.7, 0), App.Vector(-2.3, 92.6, 0)),
    Part.ArcOfCircle(Part.Circle(App.Vector(0, 95.6, 0), App.Vector(0, 0, 1), 3.8), math.radians(-127), math.radians(-53)),
    Part.LineSegment(App.Vector(2.3, 92.6, 0), App.Vector(2.3, 90.7, 0)),
    Part.ArcOfCircle(Part.Circle(App.Vector(0, 87.7, 0), App.Vector(0, 0, 1), 3.8), math.radians(53), math.radians(127)),
    Part.LineSegment(App.Vector(-2.3, 98.7, 0), App.Vector(-2.3, 100.6, 0)),
    Part.ArcOfCircle(Part.Circle(App.Vector(0, 103.6, 0), App.Vector(0, 0, 1), 3.8), math.radians(-127), math.radians(-53)),
    Part.LineSegment(App.Vector(2.3, 100.6, 0), App.Vector(2.3, 98.7, 0)),
    Part.ArcOfCircle(Part.Circle(App.Vector(0, 95.6, 0), App.Vector(0, 0, 1), 3.8), math.radians(53), math.radians(127)),
], False)
sketch3.addConstraint([
    Sketcher.Constraint("Coincident", 0, 2, 1, 1),
    Sketcher.Constraint("Coincident", 1, 2, 2, 1),
    Sketcher.Constraint("Coincident", 2, 2, 3, 1),
    Sketcher.Constraint("Coincident", 3, 2, 0, 1),
    Sketcher.Constraint("Coincident", 4, 2, 5, 1),
    Sketcher.Constraint("Coincident", 5, 2, 6, 1),
    Sketcher.Constraint("Coincident", 6, 2, 7, 1),
    Sketcher.Constraint("Coincident", 7, 2, 4, 1),
    Sketcher.Constraint("Coincident", 8, 2, 9, 1),
    Sketcher.Constraint("Coincident", 9, 2, 10, 1),
    Sketcher.Constraint("Coincident", 10, 2, 11, 1),
    Sketcher.Constraint("Coincident", 11, 2, 8, 1),
    Sketcher.Constraint("Coincident", 12, 2, 13, 1),
    Sketcher.Constraint("Coincident", 13, 2, 14, 1),
    Sketcher.Constraint("Coincident", 14, 2, 15, 1),
    Sketcher.Constraint("Coincident", 15, 2, 12, 1),
    Sketcher.Constraint("Coincident", 16, 2, 17, 1),
    Sketcher.Constraint("Coincident", 17, 2, 18, 1),
    Sketcher.Constraint("Coincident", 18, 2, 19, 1),
    Sketcher.Constraint("Coincident", 19, 2, 16, 1),
    Sketcher.Constraint("Coincident", 20, 2, 21, 1),
    Sketcher.Constraint("Coincident", 21, 2, 22, 1),
    Sketcher.Constraint("Coincident", 22, 2, 23, 1),
    Sketcher.Constraint("Coincident", 23, 2, 20, 1),
    Sketcher.Constraint("Coincident", 24, 2, 25, 1),
    Sketcher.Constraint("Coincident", 25, 2, 26, 1),
    Sketcher.Constraint("Coincident", 26, 2, 27, 1),
    Sketcher.Constraint("Coincident", 27, 2, 24, 1),
    Sketcher.Constraint("Coincident", 28, 2, 29, 1),
    Sketcher.Constraint("Coincident", 29, 2, 30, 1),
    Sketcher.Constraint("Coincident", 30, 2, 31, 1),
    Sketcher.Constraint("Coincident", 31, 2, 28, 1),
    Sketcher.Constraint("Coincident", 32, 2, 33, 1),
    Sketcher.Constraint("Coincident", 33, 2, 34, 1),
    Sketcher.Constraint("Coincident", 34, 2, 35, 1),
    Sketcher.Constraint("Coincident", 35, 2, 32, 1),
    Sketcher.Constraint("Coincident", 36, 2, 37, 1),
    Sketcher.Constraint("Coincident", 37, 2, 38, 1),
    Sketcher.Constraint("Coincident", 38, 2, 39, 1),
    Sketcher.Constraint("Coincident", 39, 2, 36, 1),
    Sketcher.Constraint("Coincident", 40, 2, 41, 1),
    Sketcher.Constraint("Coincident", 41, 2, 42, 1),
    Sketcher.Constraint("Coincident", 42, 2, 43, 1),
    Sketcher.Constraint("Coincident", 43, 2, 40, 1),
    Sketcher.Constraint("Coincident", 44, 2, 45, 1),
    Sketcher.Constraint("Coincident", 45, 2, 46, 1),
    Sketcher.Constraint("Coincident", 46, 2, 47, 1),
    Sketcher.Constraint("Coincident", 47, 2, 44, 1),
    Sketcher.Constraint("Coincident", 48, 2, 49, 1),
    Sketcher.Constraint("Coincident", 49, 2, 50, 1),
    Sketcher.Constraint("Coincident", 50, 2, 51, 1),
    Sketcher.Constraint("Coincident", 51, 2, 48, 1),
    Sketcher.Constraint("Coincident", 52, 2, 53, 1),
    Sketcher.Constraint("Coincident", 53, 2, 54, 1),
    Sketcher.Constraint("Coincident", 54, 2, 55, 1),
    Sketcher.Constraint("Coincident", 55, 2, 52, 1),
    Sketcher.Constraint("Vertical", 1),
    Sketcher.Constraint("Vertical", 3),
    Sketcher.Constraint("Horizontal", 5),
    Sketcher.Constraint("Horizontal", 7),
    Sketcher.Constraint("Vertical", 8),
    Sketcher.Constraint("Vertical", 10),
    Sketcher.Constraint("Vertical", 12),
    Sketcher.Constraint("Vertical", 14),
    Sketcher.Constraint("Vertical", 16),
    Sketcher.Constraint("Vertical", 18),
    Sketcher.Constraint("Vertical", 20),
    Sketcher.Constraint("Vertical", 22),
    Sketcher.Constraint("Vertical", 24),
    Sketcher.Constraint("Vertical", 26),
    Sketcher.Constraint("Vertical", 28),
    Sketcher.Constraint("Vertical", 30),
    Sketcher.Constraint("Vertical", 32),
    Sketcher.Constraint("Vertical", 34),
    Sketcher.Constraint("Vertical", 36),
    Sketcher.Constraint("Vertical", 38),
    Sketcher.Constraint("Vertical", 40),
    Sketcher.Constraint("Vertical", 42),
    Sketcher.Constraint("Vertical", 44),
    Sketcher.Constraint("Vertical", 46),
    Sketcher.Constraint("Vertical", 48),
    Sketcher.Constraint("Vertical", 50),
    Sketcher.Constraint("Vertical", 52),
    Sketcher.Constraint("Vertical", 54),
    Sketcher.Constraint("Coincident", 2, 3, -1, 1),
    Sketcher.Constraint("Coincident", 6, 3, -1, 1),
    Sketcher.Constraint("Coincident", 11, 3, 0, 3),
    Sketcher.Constraint("Coincident", 15, 3, 9, 3),
    Sketcher.Constraint("Coincident", 19, 3, 13, 3),
    Sketcher.Constraint("Coincident", 23, 3, 17, 3),
    Sketcher.Constraint("Coincident", 27, 3, 21, 3),
    Sketcher.Constraint("Coincident", 31, 3, 25, 3),
    Sketcher.Constraint("Coincident", 35, 3, 29, 3),
    Sketcher.Constraint("Coincident", 39, 3, 33, 3),
    Sketcher.Constraint("Coincident", 43, 3, 37, 3),
    Sketcher.Constraint("Coincident", 47, 3, 41, 3),
    Sketcher.Constraint("Coincident", 51, 3, 45, 3),
    Sketcher.Constraint("Coincident", 55, 3, 49, 3),
    Sketcher.Constraint("Equal", 0, 2),
    Sketcher.Constraint("Equal", 2, 4),
    Sketcher.Constraint("Equal", 4, 6),
    Sketcher.Constraint("Equal", 6, 9),
    Sketcher.Constraint("Equal", 9, 11),
    Sketcher.Constraint("Equal", 11, 13),
    Sketcher.Constraint("Equal", 13, 15),
    Sketcher.Constraint("Equal", 15, 17),
    Sketcher.Constraint("Equal", 17, 19),
    Sketcher.Constraint("Equal", 19, 21),
    Sketcher.Constraint("Equal", 21, 23),
    Sketcher.Constraint("Equal", 23, 25),
    Sketcher.Constraint("Equal", 25, 27),
    Sketcher.Constraint("Equal", 27, 29),
    Sketcher.Constraint("Equal", 29, 31),
    Sketcher.Constraint("Equal", 31, 33),
    Sketcher.Constraint("Equal", 33, 35),
    Sketcher.Constraint("Equal", 35, 37),
    Sketcher.Constraint("Equal", 37, 39),
    Sketcher.Constraint("Equal", 39, 41),
    Sketcher.Constraint("Equal", 41, 43),
    Sketcher.Constraint("Equal", 43, 45),
    Sketcher.Constraint("Equal", 45, 47),
    Sketcher.Constraint("Equal", 47, 49),
    Sketcher.Constraint("Equal", 49, 51),
    Sketcher.Constraint("Equal", 51, 53),
    Sketcher.Constraint("Equal", 53, 55),
    Sketcher.Constraint("Symmetric", 0, 2, 3, 2, -2),
    Sketcher.Constraint("Symmetric", 8, 2, 9, 2, -2),
    Sketcher.Constraint("Symmetric", 12, 2, 13, 2, -2),
    Sketcher.Constraint("Symmetric", 16, 2, 17, 2, -2),
    Sketcher.Constraint("Symmetric", 20, 2, 21, 2, -2),
    Sketcher.Constraint("Symmetric", 24, 2, 25, 2, -2),
    Sketcher.Constraint("Symmetric", 28, 2, 29, 2, -2),
    Sketcher.Constraint("Symmetric", 32, 2, 33, 2, -2),
    Sketcher.Constraint("Symmetric", 36, 2, 37, 2, -2),
    Sketcher.Constraint("Symmetric", 40, 2, 41, 2, -2),
    Sketcher.Constraint("Symmetric", 44, 2, 45, 2, -2),
    Sketcher.Constraint("Symmetric", 48, 2, 49, 2, -2),
    Sketcher.Constraint("Symmetric", 52, 2, 53, 2, -2),
    Sketcher.Constraint("Symmetric", 4, 2, 7, 2, -1),
    Sketcher.Constraint("Vertical", 3, 2, 8, 2),
    Sketcher.Constraint("Vertical", 11, 2, 12, 2),
    Sketcher.Constraint("Vertical", 15, 2, 16, 2),
    Sketcher.Constraint("Vertical", 19, 2, 20, 2),
    Sketcher.Constraint("Vertical", 23, 2, 24, 2),
    Sketcher.Constraint("Vertical", 27, 2, 28, 2),
    Sketcher.Constraint("Vertical", 31, 2, 32, 2),
    Sketcher.Constraint("Vertical", 35, 2, 36, 2),
    Sketcher.Constraint("Vertical", 39, 2, 40, 2),
    Sketcher.Constraint("Vertical", 43, 2, 44, 2),
    Sketcher.Constraint("Vertical", 47, 2, 48, 2),
    Sketcher.Constraint("Vertical", 51, 2, 52, 2),
    Sketcher.Constraint("Equal", 3, 8),
    Sketcher.Constraint("Equal", 10, 12),
    Sketcher.Constraint("Equal", 14, 16),
    Sketcher.Constraint("Equal", 18, 20),
    Sketcher.Constraint("Equal", 22, 24),
    Sketcher.Constraint("Equal", 26, 28),
    Sketcher.Constraint("Equal", 30, 32),
    Sketcher.Constraint("Equal", 34, 36),
    Sketcher.Constraint("Equal", 38, 40),
    Sketcher.Constraint("Equal", 42, 44),
    Sketcher.Constraint("Equal", 46, 48),
    Sketcher.Constraint("Equal", 50, 52),
    Sketcher.Constraint("Radius", 0, Q("3.8 mm")),
    Sketcher.Constraint("DistanceY", -1, 1, 0, 3, Q("7.97 mm")),
    Sketcher.Constraint("DistanceX", -1, 1, 4, 3, Q("14.94 mm")),
    Sketcher.Constraint("DistanceX", -1, 1, 0, 2, Q("2.3 mm")),
    Sketcher.Constraint("DistanceY", 4, 2, -1, 1, Q("2.3 mm")),
])
pad3 = body.newObject("PartDesign::Pad", "Pad002")
pad3.Profile = sketch3
pad3.Length = 4
pad3.Midplane = True

doc.recompute()
